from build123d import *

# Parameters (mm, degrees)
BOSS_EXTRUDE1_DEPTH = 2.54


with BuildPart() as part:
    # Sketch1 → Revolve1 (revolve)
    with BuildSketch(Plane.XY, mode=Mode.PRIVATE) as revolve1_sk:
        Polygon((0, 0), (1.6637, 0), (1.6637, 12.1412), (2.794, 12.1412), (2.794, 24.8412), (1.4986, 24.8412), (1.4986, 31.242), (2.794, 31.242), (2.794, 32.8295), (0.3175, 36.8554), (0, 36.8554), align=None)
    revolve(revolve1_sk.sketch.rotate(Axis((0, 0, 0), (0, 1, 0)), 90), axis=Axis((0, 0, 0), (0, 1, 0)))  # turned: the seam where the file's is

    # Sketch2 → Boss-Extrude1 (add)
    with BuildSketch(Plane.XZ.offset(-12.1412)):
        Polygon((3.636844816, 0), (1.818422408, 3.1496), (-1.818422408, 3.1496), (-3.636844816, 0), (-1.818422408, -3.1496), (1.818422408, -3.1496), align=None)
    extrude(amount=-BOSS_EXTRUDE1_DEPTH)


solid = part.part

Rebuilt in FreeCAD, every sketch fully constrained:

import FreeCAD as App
import Part
import Sketcher
Q = App.Units.Quantity


def add_polygon(sketch, points):
    """Adds a closed chain of lines whose ends are joined by coincident constraints."""
    first, n = sketch.GeometryCount, len(points)
    for a, b in zip(points, points[1:] + points[:1]):
        sketch.addGeometry(Part.LineSegment(App.Vector(*a, 0), App.Vector(*b, 0)), False)
    for i in range(n):
        sketch.addConstraint(Sketcher.Constraint("Coincident", first + i, 2, first + (i + 1) % n, 1))

doc = App.newDocument("Part")
body = doc.addObject("PartDesign::Body", "Body")

# Sketch on XY plane
sketch1 = body.newObject("Sketcher::SketchObject", "Sketch")
sketch1.AttachmentSupport = (doc.getObject("XY_Plane"), [""])
sketch1.MapMode = "FlatFace"
add_polygon(sketch1, [(0, 0), (1.66, 0), (1.66, 12.14), (2.79, 12.14), (2.79, 24.84), (1.5, 24.84), (1.5, 31.24), (2.79, 31.24), (2.79, 32.83), (0.32, 36.86), (0, 36.86)])  # lines 0-10
sketch1.addConstraint([
    Sketcher.Constraint("Horizontal", 0),
    Sketcher.Constraint("Vertical", 1),
    Sketcher.Constraint("Horizontal", 2),
    Sketcher.Constraint("Vertical", 3),
    Sketcher.Constraint("Horizontal", 4),
    Sketcher.Constraint("Vertical", 5),
    Sketcher.Constraint("Horizontal", 6),
    Sketcher.Constraint("Vertical", 7),
    Sketcher.Constraint("Horizontal", 9),
    Sketcher.Constraint("Vertical", 10),
    Sketcher.Constraint("Coincident", 10, 2, -1, 1),
    Sketcher.Constraint("Vertical", 3, 2, 6, 2),
    Sketcher.Constraint("DistanceY", 3, 1, 3, 2, Q("0.5 in")),
    Sketcher.Constraint("DistanceX", 4, 2, 4, 1, Q("0.051 in")),
    Sketcher.Constraint("DistanceY", 1, 1, 1, 2, Q("0.478 in")),
    Sketcher.Constraint("DistanceY", 5, 1, 5, 2, Q("0.252 in")),
    Sketcher.Constraint("DistanceY", 7, 1, 7, 2, Q("0.0625 in")),
    Sketcher.Constraint("DistanceY", 10, 2, 10, 1, Q("1.451 in")),
    Sketcher.Constraint("DistanceX", -1, 1, 2, 2, Q("0.11 in")),
    Sketcher.Constraint("DistanceX", 0, 1, 0, 2, Q("0.0655 in")),
    Sketcher.Constraint("DistanceX", 9, 2, 9, 1, Q("0.0125 in")),
])
revolution = body.newObject("PartDesign::Revolution", "Revolution")
revolution.Profile = sketch1
revolution.ReferenceAxis = (sketch1, ["V_Axis"])
revolution.Angle = 360

# Sketch on XZ plane
sketch2 = body.newObject("Sketcher::SketchObject", "Sketch001")
sketch2.AttachmentSupport = (doc.getObject("XZ_Plane"), [""])
sketch2.MapMode = "FlatFace"
sketch2.AttachmentOffset = App.Placement(App.Vector(0, 0, -0.478 * 25.4), App.Rotation())
add_polygon(sketch2, [(3.6, 0), (1.8, 3.1), (-1.8, 3.1), (-3.6, 0), (-1.8, -3.1), (1.8, -3.1)])  # lines 0-5
sketch2.addConstraint([
    Sketcher.Constraint("Horizontal", 1),
    Sketcher.Constraint("Horizontal", 4),
    Sketcher.Constraint("Symmetric", 0, 2, 3, 2, -1, 1),
    Sketcher.Constraint("Symmetric", 2, 2, 5, 2, -1, 1),
    Sketcher.Constraint("PointOnObject", 2, 2, -1),
    Sketcher.Constraint("Parallel", 2, 5),
    Sketcher.Constraint("Vertical", 1, 2, 3, 2),
    Sketcher.Constraint("Angle", 0, Q("120 deg")),
    Sketcher.Constraint("DistanceY", -1, 1, 0, 2, Q("0.124 in")),
    Sketcher.Constraint("DistanceX", 1, 2, 1, 1, 3.636845),
])
pad1 = body.newObject("PartDesign::Pad", "Pad")
pad1.Profile = sketch2
pad1.Length = Q("0.1 in")
pad1.Reversed = True

doc.recompute()
